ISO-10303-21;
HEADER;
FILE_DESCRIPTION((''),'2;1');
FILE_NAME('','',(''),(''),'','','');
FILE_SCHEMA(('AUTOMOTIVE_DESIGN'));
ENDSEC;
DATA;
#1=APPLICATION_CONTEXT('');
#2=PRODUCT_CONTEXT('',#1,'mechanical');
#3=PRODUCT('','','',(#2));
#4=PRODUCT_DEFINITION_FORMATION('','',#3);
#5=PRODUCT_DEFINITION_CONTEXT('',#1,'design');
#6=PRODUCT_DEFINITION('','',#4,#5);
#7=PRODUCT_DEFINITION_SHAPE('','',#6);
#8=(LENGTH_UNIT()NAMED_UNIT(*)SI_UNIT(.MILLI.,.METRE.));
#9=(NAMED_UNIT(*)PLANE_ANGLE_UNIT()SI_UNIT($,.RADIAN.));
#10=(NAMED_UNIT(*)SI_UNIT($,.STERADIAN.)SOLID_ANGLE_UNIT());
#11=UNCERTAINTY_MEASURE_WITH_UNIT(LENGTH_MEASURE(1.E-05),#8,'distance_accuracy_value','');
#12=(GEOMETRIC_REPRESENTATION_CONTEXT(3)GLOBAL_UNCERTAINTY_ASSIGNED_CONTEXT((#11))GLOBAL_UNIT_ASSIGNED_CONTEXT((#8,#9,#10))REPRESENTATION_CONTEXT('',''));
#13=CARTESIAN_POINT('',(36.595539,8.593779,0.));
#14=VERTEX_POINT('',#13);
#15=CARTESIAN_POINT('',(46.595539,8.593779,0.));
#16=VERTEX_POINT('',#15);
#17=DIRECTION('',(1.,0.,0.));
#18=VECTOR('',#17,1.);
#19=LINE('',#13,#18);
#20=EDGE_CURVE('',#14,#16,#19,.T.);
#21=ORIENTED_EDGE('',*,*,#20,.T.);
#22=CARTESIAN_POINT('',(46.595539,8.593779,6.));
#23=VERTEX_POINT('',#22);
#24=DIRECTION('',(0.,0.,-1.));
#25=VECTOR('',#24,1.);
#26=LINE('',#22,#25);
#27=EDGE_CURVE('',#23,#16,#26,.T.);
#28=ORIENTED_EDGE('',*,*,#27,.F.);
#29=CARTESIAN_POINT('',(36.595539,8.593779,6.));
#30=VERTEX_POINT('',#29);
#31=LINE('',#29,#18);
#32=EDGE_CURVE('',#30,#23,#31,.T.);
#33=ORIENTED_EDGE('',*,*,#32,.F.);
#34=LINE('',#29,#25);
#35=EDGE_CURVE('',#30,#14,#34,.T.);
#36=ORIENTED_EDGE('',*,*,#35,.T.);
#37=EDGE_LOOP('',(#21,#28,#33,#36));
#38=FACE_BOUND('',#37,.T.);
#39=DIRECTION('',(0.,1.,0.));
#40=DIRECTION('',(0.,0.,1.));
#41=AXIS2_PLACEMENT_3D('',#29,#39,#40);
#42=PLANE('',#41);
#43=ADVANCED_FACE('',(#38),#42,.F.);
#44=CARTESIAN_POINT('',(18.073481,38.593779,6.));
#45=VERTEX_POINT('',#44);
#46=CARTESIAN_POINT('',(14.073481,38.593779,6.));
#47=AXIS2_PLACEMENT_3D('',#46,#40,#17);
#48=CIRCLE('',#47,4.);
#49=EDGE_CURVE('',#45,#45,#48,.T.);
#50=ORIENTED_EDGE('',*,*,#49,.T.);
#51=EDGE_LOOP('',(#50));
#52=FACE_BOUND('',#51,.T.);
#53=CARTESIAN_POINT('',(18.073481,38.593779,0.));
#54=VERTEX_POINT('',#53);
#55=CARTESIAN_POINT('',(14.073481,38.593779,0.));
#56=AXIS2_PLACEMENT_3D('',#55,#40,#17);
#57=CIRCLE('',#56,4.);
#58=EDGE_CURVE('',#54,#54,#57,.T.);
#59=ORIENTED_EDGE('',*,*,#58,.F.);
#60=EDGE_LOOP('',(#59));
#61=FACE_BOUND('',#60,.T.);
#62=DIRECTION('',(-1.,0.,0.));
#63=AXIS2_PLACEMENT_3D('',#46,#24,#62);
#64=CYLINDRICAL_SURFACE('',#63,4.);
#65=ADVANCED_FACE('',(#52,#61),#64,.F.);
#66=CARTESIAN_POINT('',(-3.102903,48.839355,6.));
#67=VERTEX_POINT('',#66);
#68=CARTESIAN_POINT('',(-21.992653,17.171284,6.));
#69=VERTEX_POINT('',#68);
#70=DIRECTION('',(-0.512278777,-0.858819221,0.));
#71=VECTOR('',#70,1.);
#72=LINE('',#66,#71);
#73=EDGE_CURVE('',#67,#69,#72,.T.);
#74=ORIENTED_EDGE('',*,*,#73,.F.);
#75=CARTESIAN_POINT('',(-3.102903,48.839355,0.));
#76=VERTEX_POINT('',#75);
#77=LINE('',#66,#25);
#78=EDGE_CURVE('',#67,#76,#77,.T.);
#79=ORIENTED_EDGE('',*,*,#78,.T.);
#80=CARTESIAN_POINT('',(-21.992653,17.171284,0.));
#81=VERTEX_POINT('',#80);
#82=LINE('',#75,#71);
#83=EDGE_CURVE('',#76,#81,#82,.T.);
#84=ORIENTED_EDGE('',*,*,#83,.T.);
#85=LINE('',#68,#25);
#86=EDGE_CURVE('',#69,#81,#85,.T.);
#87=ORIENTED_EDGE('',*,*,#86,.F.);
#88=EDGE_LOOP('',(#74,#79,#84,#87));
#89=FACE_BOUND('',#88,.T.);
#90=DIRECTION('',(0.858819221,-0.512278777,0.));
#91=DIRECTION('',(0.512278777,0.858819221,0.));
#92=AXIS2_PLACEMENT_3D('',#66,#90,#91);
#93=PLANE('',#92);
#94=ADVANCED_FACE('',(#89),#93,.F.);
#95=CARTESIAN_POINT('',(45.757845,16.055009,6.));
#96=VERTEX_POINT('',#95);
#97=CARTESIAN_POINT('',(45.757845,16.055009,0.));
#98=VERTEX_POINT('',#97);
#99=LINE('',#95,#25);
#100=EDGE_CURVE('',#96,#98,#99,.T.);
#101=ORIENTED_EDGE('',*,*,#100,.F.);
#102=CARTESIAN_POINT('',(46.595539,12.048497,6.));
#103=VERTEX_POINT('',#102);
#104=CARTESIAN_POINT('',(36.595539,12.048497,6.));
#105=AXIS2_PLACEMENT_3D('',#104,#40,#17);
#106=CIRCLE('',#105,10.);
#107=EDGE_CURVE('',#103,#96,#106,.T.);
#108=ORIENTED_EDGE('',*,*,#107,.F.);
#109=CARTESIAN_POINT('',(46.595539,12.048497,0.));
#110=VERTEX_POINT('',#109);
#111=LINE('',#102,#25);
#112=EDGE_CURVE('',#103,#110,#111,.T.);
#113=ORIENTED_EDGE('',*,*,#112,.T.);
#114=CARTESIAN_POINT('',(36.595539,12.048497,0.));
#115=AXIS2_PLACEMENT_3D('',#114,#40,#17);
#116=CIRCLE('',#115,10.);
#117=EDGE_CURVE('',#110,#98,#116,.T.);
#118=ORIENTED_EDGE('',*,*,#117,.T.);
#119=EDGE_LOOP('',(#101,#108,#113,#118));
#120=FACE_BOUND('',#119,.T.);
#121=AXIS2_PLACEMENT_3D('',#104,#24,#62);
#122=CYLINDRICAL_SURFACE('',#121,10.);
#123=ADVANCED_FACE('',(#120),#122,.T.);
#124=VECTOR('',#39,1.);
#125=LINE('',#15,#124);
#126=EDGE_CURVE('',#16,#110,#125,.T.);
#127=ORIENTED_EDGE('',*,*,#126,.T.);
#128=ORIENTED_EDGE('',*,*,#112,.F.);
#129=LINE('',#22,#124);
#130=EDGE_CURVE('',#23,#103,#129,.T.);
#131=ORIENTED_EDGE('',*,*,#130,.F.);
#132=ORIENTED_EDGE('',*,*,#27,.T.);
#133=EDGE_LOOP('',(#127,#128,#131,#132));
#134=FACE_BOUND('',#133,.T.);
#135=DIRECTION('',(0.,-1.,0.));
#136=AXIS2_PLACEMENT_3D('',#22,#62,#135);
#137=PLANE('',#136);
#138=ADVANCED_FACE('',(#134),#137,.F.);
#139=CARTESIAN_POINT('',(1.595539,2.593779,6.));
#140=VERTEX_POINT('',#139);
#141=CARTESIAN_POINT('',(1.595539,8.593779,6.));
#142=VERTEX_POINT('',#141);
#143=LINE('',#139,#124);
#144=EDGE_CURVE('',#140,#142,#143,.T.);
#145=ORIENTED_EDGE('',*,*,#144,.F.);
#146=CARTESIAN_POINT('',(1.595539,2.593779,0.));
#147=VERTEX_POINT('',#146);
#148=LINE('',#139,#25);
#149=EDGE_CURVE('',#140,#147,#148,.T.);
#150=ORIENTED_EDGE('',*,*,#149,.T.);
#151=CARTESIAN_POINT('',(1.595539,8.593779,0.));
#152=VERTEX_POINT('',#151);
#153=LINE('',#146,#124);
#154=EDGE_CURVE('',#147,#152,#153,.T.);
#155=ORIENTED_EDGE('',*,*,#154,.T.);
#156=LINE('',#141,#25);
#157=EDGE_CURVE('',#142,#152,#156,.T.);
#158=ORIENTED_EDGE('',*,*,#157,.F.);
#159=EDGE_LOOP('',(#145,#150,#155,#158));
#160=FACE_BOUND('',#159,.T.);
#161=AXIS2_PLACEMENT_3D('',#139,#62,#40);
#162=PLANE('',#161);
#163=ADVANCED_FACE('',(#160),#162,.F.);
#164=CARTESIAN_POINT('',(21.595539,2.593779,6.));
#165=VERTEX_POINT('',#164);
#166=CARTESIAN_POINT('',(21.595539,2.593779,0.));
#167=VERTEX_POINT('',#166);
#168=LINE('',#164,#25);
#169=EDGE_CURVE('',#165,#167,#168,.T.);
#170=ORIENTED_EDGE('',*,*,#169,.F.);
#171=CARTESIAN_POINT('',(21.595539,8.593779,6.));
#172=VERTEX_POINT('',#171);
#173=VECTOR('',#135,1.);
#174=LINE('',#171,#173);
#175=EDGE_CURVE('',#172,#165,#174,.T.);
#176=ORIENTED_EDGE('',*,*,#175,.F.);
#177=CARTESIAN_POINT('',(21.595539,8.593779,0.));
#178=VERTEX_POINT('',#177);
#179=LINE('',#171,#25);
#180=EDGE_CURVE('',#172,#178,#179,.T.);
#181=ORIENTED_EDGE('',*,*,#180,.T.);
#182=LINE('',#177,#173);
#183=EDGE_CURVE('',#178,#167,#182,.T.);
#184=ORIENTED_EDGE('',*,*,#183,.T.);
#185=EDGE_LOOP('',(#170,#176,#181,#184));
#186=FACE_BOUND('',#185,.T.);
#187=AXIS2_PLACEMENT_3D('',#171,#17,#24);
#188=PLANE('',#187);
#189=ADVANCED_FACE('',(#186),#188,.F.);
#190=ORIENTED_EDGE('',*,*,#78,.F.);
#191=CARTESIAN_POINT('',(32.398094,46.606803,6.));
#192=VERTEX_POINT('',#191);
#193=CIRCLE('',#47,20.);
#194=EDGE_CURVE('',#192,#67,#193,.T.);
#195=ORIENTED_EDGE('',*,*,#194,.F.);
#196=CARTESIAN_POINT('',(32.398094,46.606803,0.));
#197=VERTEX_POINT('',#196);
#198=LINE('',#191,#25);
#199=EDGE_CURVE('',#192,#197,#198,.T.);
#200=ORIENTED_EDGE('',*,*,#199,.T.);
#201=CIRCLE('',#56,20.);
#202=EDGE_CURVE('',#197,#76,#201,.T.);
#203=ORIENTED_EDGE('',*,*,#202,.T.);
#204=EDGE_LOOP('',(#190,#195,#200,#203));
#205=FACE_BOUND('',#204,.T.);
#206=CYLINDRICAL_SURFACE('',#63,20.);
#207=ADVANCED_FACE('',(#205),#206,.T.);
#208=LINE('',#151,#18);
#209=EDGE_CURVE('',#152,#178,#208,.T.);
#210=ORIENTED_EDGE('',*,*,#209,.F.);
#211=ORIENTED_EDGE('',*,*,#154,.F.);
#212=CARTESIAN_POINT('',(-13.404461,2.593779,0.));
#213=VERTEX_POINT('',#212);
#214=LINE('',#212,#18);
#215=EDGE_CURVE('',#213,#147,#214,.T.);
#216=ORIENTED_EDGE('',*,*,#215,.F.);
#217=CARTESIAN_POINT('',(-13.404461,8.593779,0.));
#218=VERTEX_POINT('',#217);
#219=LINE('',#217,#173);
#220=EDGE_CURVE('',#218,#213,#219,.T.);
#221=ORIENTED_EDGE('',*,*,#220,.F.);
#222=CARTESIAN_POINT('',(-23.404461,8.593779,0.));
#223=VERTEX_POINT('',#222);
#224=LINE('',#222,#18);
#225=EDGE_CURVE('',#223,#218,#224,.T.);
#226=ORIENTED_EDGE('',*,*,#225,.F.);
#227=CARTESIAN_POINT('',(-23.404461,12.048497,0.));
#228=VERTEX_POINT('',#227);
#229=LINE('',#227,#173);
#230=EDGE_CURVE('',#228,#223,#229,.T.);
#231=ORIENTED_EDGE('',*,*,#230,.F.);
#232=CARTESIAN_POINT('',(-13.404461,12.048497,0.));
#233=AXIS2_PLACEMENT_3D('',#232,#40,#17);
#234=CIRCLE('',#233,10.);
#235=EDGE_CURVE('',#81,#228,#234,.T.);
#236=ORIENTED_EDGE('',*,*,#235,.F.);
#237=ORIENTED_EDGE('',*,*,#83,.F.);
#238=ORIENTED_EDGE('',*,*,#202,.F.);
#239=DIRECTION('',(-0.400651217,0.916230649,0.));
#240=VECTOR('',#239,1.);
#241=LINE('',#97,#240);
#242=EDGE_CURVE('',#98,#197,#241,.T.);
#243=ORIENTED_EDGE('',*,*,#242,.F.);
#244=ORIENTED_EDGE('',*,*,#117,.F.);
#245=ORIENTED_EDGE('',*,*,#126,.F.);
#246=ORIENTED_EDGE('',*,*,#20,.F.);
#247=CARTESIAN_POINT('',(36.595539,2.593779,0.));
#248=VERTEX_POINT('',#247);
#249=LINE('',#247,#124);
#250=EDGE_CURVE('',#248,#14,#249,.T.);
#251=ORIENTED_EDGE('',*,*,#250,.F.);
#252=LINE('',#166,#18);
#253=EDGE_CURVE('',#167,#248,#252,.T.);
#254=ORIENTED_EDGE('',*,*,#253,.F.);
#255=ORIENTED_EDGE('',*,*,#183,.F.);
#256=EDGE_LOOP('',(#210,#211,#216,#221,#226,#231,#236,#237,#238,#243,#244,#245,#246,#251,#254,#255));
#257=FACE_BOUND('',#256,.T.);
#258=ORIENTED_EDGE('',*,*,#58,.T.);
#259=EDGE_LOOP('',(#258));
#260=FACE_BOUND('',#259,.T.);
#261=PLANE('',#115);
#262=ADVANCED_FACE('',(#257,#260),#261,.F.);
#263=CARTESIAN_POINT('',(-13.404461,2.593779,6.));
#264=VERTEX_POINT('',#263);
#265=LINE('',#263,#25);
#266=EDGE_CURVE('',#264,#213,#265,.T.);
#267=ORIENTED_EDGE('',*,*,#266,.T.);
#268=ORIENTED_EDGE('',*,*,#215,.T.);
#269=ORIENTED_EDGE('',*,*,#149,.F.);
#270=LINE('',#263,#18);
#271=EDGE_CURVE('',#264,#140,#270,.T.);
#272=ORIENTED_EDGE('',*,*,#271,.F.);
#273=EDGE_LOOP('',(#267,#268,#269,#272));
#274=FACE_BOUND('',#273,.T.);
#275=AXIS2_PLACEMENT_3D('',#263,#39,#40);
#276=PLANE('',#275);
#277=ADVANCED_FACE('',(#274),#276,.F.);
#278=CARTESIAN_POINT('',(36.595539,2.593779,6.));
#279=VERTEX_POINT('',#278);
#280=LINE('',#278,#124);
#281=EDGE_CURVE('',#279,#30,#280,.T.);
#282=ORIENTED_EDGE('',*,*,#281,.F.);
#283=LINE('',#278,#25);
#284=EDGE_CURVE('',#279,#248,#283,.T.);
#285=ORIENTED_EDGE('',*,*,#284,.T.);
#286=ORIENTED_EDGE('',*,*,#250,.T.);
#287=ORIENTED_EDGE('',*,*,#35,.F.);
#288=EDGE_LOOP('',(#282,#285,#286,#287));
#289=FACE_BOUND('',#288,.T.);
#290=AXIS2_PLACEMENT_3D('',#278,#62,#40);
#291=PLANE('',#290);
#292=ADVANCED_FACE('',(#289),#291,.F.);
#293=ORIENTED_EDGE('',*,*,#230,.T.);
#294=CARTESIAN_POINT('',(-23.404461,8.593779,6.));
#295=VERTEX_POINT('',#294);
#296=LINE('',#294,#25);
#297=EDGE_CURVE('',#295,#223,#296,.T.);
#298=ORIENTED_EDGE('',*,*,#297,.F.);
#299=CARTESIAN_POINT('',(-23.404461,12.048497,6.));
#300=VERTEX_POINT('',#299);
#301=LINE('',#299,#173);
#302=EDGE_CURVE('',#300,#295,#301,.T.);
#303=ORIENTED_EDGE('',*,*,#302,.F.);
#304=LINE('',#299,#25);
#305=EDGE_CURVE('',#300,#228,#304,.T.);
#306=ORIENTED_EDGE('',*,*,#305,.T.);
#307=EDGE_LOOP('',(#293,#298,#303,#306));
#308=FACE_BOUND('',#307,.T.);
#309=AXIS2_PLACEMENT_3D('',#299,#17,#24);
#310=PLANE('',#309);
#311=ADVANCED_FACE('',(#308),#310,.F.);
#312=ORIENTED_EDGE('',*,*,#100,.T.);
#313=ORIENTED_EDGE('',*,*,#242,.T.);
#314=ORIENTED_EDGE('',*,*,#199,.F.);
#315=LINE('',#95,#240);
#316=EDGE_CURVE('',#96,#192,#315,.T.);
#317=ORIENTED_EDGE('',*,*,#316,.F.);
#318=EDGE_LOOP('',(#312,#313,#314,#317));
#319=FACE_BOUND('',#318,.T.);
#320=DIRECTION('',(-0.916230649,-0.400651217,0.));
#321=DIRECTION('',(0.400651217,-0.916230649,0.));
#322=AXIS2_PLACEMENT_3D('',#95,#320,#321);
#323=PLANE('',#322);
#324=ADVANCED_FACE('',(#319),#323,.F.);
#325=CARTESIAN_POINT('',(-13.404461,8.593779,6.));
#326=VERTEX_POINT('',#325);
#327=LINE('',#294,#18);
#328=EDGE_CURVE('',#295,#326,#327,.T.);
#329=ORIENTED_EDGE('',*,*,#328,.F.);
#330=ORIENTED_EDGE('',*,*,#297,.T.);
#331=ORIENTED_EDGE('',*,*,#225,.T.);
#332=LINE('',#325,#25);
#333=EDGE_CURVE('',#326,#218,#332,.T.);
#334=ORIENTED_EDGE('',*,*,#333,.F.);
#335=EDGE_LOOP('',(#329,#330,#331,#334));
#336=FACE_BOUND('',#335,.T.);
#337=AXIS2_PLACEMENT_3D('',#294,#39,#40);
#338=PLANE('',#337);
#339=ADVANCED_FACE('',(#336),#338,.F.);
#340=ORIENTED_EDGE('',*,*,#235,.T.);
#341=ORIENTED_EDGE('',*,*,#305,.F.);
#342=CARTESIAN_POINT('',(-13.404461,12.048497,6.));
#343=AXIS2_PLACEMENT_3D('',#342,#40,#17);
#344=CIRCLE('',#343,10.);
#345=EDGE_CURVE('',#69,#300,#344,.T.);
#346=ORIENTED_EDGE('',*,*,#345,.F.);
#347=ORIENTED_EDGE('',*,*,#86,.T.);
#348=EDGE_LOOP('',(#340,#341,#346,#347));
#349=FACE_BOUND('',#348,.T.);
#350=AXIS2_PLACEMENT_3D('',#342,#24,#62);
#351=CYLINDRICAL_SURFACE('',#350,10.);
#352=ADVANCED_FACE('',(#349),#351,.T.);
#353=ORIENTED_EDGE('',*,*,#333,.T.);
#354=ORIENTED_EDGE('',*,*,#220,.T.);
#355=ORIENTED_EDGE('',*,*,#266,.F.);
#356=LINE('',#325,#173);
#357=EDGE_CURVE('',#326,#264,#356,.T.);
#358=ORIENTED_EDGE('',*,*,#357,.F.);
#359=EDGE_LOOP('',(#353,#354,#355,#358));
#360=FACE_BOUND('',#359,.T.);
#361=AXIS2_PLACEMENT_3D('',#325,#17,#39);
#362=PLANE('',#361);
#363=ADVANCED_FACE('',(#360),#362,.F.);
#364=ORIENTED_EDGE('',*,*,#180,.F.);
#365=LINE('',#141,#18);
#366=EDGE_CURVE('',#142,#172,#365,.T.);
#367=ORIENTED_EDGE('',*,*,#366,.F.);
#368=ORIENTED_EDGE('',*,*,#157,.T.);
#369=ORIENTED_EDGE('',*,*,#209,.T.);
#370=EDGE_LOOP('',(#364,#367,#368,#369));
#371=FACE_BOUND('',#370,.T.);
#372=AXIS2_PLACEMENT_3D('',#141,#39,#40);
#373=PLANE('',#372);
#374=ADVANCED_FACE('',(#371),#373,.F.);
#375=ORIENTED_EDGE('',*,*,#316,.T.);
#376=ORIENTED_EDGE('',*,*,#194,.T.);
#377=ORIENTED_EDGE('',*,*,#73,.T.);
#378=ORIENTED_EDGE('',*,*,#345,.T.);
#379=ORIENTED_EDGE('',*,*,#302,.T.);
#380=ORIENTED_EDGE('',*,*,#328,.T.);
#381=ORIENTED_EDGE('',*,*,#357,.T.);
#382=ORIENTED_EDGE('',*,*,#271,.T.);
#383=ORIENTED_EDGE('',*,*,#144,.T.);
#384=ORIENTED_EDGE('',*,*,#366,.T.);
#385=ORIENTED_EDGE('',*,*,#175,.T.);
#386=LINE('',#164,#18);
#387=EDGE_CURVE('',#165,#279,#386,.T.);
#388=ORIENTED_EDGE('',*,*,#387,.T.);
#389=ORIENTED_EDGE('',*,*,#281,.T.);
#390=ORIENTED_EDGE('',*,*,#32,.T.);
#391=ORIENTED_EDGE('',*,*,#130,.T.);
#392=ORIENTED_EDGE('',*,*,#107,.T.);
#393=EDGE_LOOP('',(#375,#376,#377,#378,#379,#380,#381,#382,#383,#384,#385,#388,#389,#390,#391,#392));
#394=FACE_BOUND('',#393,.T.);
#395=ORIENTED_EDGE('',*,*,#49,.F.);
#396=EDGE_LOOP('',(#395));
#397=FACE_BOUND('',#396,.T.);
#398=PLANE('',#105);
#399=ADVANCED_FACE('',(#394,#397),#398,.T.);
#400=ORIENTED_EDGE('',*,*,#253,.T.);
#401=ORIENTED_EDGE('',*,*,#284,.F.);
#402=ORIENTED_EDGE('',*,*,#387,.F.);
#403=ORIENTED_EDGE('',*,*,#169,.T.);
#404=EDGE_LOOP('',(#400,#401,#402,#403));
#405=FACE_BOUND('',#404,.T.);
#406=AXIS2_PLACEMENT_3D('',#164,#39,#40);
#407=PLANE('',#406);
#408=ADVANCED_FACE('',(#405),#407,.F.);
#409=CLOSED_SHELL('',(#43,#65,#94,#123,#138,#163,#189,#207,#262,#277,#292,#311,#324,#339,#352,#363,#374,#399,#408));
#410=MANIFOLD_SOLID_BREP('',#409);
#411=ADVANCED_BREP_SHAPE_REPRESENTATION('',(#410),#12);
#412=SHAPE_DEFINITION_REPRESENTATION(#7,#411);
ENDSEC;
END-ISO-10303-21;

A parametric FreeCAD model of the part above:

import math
import FreeCAD as App
import Part
import Sketcher

doc = App.newDocument("Part")
body = doc.addObject("PartDesign::Body", "Body")

# Sketch on XY plane
sketch1 = body.newObject("Sketcher::SketchObject", "Sketch")
sketch1.AttachmentSupport = (doc.getObject("XY_Plane"), [""])
sketch1.MapMode = "FlatFace"
sketch1.addGeometry(Part.LineSegment(App.Vector(-13.4, 2.6, 0), App.Vector(1.6, 2.6, 0)), False)
sketch1.addGeometry(Part.LineSegment(App.Vector(1.6, 2.6, 0), App.Vector(1.6, 8.6, 0)), False)
sketch1.addGeometry(Part.LineSegment(App.Vector(1.6, 8.6, 0), App.Vector(21.6, 8.6, 0)), False)
sketch1.addGeometry(Part.LineSegment(App.Vector(21.6, 8.6, 0), App.Vector(21.6, 2.6, 0)), False)
sketch1.addGeometry(Part.LineSegment(App.Vector(21.6, 2.6, 0), App.Vector(36.6, 2.6, 0)), False)
sketch1.addGeometry(Part.LineSegment(App.Vector(36.6, 2.6, 0), App.Vector(36.6, 8.6, 0)), False)
sketch1.addGeometry(Part.LineSegment(App.Vector(36.6, 8.6, 0), App.Vector(46.6, 8.6, 0)), False)
sketch1.addGeometry(Part.LineSegment(App.Vector(46.6, 8.6, 0), App.Vector(46.6, 12, 0)), False)
sketch1.addGeometry(Part.ArcOfCircle(Part.Circle(App.Vector(36.6, 12, 0), App.Vector(0, 0, 1), 10), math.radians(0), math.radians(24)), False)
sketch1.addGeometry(Part.LineSegment(App.Vector(45.8, 16.1, 0), App.Vector(32.4, 46.6, 0)), False)
sketch1.addGeometry(Part.ArcOfCircle(Part.Circle(App.Vector(14.1, 38.6, 0), App.Vector(0, 0, 1), 20), math.radians(24), math.radians(149)), False)
sketch1.addGeometry(Part.LineSegment(App.Vector(-3.1, 48.8, 0), App.Vector(-22, 17.2, 0)), False)
sketch1.addGeometry(Part.ArcOfCircle(Part.Circle(App.Vector(-13.4, 12, 0), App.Vector(0, 0, 1), 10), math.radians(149), math.radians(180)), False)
sketch1.addGeometry(Part.LineSegment(App.Vector(-23.4, 12, 0), App.Vector(-23.4, 8.6, 0)), False)
sketch1.addGeometry(Part.LineSegment(App.Vector(-23.4, 8.6, 0), App.Vector(-13.4, 8.6, 0)), False)
sketch1.addGeometry(Part.LineSegment(App.Vector(-13.4, 8.6, 0), App.Vector(-13.4, 2.6, 0)), False)
sketch1.addGeometry(Part.Circle(App.Vector(14.1, 38.6, 0), App.Vector(0, 0, 1), 4), False)
sketch1.addConstraint(Sketcher.Constraint("Coincident", 0, 2, 1, 1))
sketch1.addConstraint(Sketcher.Constraint("Coincident", 1, 2, 2, 1))
sketch1.addConstraint(Sketcher.Constraint("Coincident", 2, 2, 3, 1))
sketch1.addConstraint(Sketcher.Constraint("Coincident", 3, 2, 4, 1))
sketch1.addConstraint(Sketcher.Constraint("Coincident", 4, 2, 5, 1))
sketch1.addConstraint(Sketcher.Constraint("Coincident", 5, 2, 6, 1))
sketch1.addConstraint(Sketcher.Constraint("Coincident", 6, 2, 7, 1))
sketch1.addConstraint(Sketcher.Constraint("Tangent", 7, 2, 8, 1))
sketch1.addConstraint(Sketcher.Constraint("Tangent", 8, 2, 9, 1))
sketch1.addConstraint(Sketcher.Constraint("Tangent", 9, 2, 10, 1))
sketch1.addConstraint(Sketcher.Constraint("Tangent", 10, 2, 11, 1))
sketch1.addConstraint(Sketcher.Constraint("Tangent", 11, 2, 12, 1))
sketch1.addConstraint(Sketcher.Constraint("Tangent", 12, 2, 13, 1))
sketch1.addConstraint(Sketcher.Constraint("Coincident", 13, 2, 14, 1))
sketch1.addConstraint(Sketcher.Constraint("Coincident", 14, 2, 15, 1))
sketch1.addConstraint(Sketcher.Constraint("Coincident", 15, 2, 0, 1))
sketch1.addConstraint(Sketcher.Constraint("Horizontal", 0))
sketch1.addConstraint(Sketcher.Constraint("Vertical", 1))
sketch1.addConstraint(Sketcher.Constraint("Horizontal", 2))
sketch1.addConstraint(Sketcher.Constraint("Vertical", 3))
sketch1.addConstraint(Sketcher.Constraint("Horizontal", 4))
sketch1.addConstraint(Sketcher.Constraint("Vertical", 5))
sketch1.addConstraint(Sketcher.Constraint("Horizontal", 6))
sketch1.addConstraint(Sketcher.Constraint("Vertical", 7))
sketch1.addConstraint(Sketcher.Constraint("Vertical", 13))
sketch1.addConstraint(Sketcher.Constraint("Horizontal", 14))
sketch1.addConstraint(Sketcher.Constraint("Vertical", 15))
sketch1.addConstraint(Sketcher.Constraint("Coincident", 16, 3, 10, 3))
sketch1.addConstraint(Sketcher.Constraint("Equal", 8, 12))
sketch1.addConstraint(Sketcher.Constraint("Horizontal", 8, 3, 12, 3))
sketch1.addConstraint(Sketcher.Constraint("Horizontal", 0, 2, 3, 2))
sketch1.addConstraint(Sketcher.Constraint("Horizontal", 2, 2, 5, 2))
sketch1.addConstraint(Sketcher.Constraint("Horizontal", 6, 2, 13, 2))
sketch1.addConstraint(Sketcher.Constraint("Vertical", 8, 3, 4, 2))
sketch1.addConstraint(Sketcher.Constraint("Vertical", 12, 3, 14, 2))
sketch1.addConstraint(Sketcher.Constraint("Equal", 0, 4))
sketch1.addConstraint(Sketcher.Constraint("Diameter", 16, 8.0))
sketch1.addConstraint(Sketcher.Constraint("Radius", 8, 10.0))
sketch1.addConstraint(Sketcher.Constraint("Radius", 10, 20.0))
sketch1.addConstraint(Sketcher.Constraint("DistanceX", 0, 1, 0, 2, 15.0))
sketch1.addConstraint(Sketcher.Constraint("DistanceX", 2, 1, 2, 2, 20.0))
sketch1.addConstraint(Sketcher.Constraint("DistanceY", 1, 1, 1, 2, 6.0))
sketch1.addConstraint(Sketcher.Constraint("DistanceY", 0, 2, 10, 3, 36.0))
sketch1.addConstraint(Sketcher.Constraint("Distance", 9, 33.345091))
sketch1.addConstraint(Sketcher.Constraint("DistanceY", 7, 1, 7, 2, 3.454718))
sketch1.addConstraint(Sketcher.Constraint("DistanceX", -1, 1, 8, 3, 36.595539))
sketch1.addConstraint(Sketcher.Constraint("DistanceY", -1, 1, 10, 3, 38.593779))
pad1 = body.newObject("PartDesign::Pad", "Pad")
pad1.Profile = sketch1
pad1.Length = 6

doc.recompute()
